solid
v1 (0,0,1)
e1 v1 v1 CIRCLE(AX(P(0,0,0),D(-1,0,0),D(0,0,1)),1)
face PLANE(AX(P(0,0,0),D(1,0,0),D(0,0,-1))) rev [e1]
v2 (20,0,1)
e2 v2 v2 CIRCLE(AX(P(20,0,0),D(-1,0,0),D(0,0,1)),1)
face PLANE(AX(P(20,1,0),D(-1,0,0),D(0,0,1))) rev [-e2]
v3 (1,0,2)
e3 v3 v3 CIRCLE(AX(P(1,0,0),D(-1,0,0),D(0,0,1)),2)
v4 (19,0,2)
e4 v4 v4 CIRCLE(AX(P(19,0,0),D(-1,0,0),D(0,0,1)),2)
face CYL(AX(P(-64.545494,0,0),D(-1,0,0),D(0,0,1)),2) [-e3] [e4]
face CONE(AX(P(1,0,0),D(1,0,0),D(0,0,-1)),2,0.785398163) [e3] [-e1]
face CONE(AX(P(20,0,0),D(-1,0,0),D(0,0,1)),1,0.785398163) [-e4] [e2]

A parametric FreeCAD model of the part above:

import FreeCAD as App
import Part
import Sketcher

V = App.Vector
Q = App.Units.Quantity

doc = App.newDocument("Part")
body = doc.addObject("PartDesign::Body", "Body")

# Sketch on XY plane
sketch1 = doc.addObject("Sketcher::SketchObject", "Sketch")
body.addObject(sketch1)
sketch1.AttachmentSupport = (doc.XY_Plane, [""])
sketch1.MapMode = "FlatFace"
sketch1.addGeometry(Part.LineSegment(V(0, 1, 0), V(0, 0, 0)), False)
sketch1.addGeometry(Part.LineSegment(V(0, 0, 0), V(20, 0, 0)), False)
sketch1.addGeometry(Part.LineSegment(V(20, 0, 0), V(20, 1, 0)), False)
sketch1.addGeometry(Part.LineSegment(V(20, 1, 0), V(19, 2, 0)), False)
sketch1.addGeometry(Part.LineSegment(V(19, 2, 0), V(1, 2, 0)), False)
sketch1.addGeometry(Part.LineSegment(V(1, 2, 0), V(0, 1, 0)), False)
sketch1.addConstraint(Sketcher.Constraint("Coincident", 0, 2, 1, 1))
sketch1.addConstraint(Sketcher.Constraint("Coincident", 1, 2, 2, 1))
sketch1.addConstraint(Sketcher.Constraint("Coincident", 2, 2, 3, 1))
sketch1.addConstraint(Sketcher.Constraint("Coincident", 3, 2, 4, 1))
sketch1.addConstraint(Sketcher.Constraint("Coincident", 4, 2, 5, 1))
sketch1.addConstraint(Sketcher.Constraint("Coincident", 5, 2, 0, 1))
sketch1.addConstraint(Sketcher.Constraint("Vertical", 0))
sketch1.addConstraint(Sketcher.Constraint("Horizontal", 1))
sketch1.addConstraint(Sketcher.Constraint("Vertical", 2))
sketch1.addConstraint(Sketcher.Constraint("Horizontal", 4))
sketch1.addConstraint(Sketcher.Constraint("Coincident", 0, 2, -1, 1))
sketch1.addConstraint(Sketcher.Constraint("Perpendicular", 3, 5))
sketch1.addConstraint(Sketcher.Constraint("Horizontal", 2, 2, 5, 2))
sketch1.addConstraint(Sketcher.Constraint("Equal", 3, 5))
sketch1.addConstraint(Sketcher.Constraint("DistanceX", 1, 1, 1, 2, Q("20 mm")))
sketch1.addConstraint(Sketcher.Constraint("DistanceX", 4, 2, 4, 1, Q("18 mm")))
sketch1.addConstraint(Sketcher.Constraint("DistanceY", 0, 2, 0, 1, Q("1 mm")))
revolution = doc.addObject("PartDesign::Revolution", "Revolution")
body.addObject(revolution)
revolution.Profile = sketch1
revolution.ReferenceAxis = (sketch1, ["H_Axis"])
revolution.Angle = 360

doc.recompute()
